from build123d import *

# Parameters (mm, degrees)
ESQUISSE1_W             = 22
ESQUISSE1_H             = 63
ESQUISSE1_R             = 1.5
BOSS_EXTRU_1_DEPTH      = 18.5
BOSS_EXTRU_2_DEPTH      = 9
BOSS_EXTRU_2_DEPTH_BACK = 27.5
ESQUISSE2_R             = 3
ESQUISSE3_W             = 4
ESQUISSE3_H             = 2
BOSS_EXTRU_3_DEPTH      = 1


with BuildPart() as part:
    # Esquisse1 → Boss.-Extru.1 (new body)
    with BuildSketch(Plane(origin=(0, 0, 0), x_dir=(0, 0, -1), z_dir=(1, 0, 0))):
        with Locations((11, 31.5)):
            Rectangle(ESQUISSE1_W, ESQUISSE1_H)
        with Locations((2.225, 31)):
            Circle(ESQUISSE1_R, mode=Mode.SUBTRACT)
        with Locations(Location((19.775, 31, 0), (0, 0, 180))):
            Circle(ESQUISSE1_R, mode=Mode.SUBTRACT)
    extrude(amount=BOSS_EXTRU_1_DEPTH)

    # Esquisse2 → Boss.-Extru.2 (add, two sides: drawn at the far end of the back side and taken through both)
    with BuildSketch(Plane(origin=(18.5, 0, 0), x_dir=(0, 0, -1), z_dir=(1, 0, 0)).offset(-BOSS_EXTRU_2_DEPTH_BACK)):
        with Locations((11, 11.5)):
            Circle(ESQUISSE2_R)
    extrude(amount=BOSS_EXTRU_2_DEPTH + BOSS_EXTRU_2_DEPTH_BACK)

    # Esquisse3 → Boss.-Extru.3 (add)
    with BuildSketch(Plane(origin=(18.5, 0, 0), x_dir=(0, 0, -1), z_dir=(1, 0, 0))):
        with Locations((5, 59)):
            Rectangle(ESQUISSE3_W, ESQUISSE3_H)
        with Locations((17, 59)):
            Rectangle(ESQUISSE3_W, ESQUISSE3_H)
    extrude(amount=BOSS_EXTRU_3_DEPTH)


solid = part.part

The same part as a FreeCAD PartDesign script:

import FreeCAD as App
import Part
import Sketcher
from FreeCAD import Vector
Q = App.Units.Quantity

doc = App.newDocument("Part")
body = doc.addObject("PartDesign::Body", "Body")

# Sketch on YZ plane
sketch1 = body.newObject("Sketcher::SketchObject", "Sketch")
sketch1.AttachmentSupport = (doc.getObject("YZ_Plane"), [""])
sketch1.MapMode = "FlatFace"
sketch1.addGeometry([
    Part.LineSegment(Vector(63, 0, 0), Vector(0, 0, 0)),  # 0
    Part.LineSegment(Vector(0, 0, 0), Vector(0, -22, 0)),  # 1
    Part.LineSegment(Vector(0, -22, 0), Vector(63, -22, 0)),  # 2
    Part.LineSegment(Vector(63, -22, 0), Vector(63, 0, 0)),  # 3
    Part.Circle(Vector(31, -2.225, 0), Vector(0, 0, 1), 1.5),  # 4
    Part.Circle(Vector(31, -19.775, 0), Vector(0, 0, 1), 1.5),  # 5
], False)
sketch1.addConstraint([
    Sketcher.Constraint("Coincident", 0, 2, 1, 1),
    Sketcher.Constraint("Coincident", 1, 2, 2, 1),
    Sketcher.Constraint("Coincident", 2, 2, 3, 1),
    Sketcher.Constraint("Coincident", 3, 2, 0, 1),
    Sketcher.Constraint("Horizontal", 0),
    Sketcher.Constraint("Vertical", 1),
    Sketcher.Constraint("Horizontal", 2),
    Sketcher.Constraint("Vertical", 3),
    Sketcher.Constraint("Coincident", 0, 2, -1, 1),
    Sketcher.Constraint("Equal", 4, 5),
    Sketcher.Constraint("Vertical", 4, 3, 5, 3),
    Sketcher.Constraint("Diameter", 4, Q("3 mm")),
    Sketcher.Constraint("DistanceX", 0, 2, 0, 1, Q("63 mm")),
    Sketcher.Constraint("DistanceY", 1, 2, 1, 1, Q("22 mm")),
    Sketcher.Constraint("DistanceX", -1, 1, 4, 3, Q("31 mm")),
    Sketcher.Constraint("DistanceY", 5, 3, 4, 3, Q("17.55 mm")),
    Sketcher.Constraint("DistanceY", 4, 3, -1, 1, Q("2.225 mm")),
])
pad1 = body.newObject("PartDesign::Pad", "Pad")
pad1.Profile = sketch1
pad1.Length = 18.5

# Sketch on YZ plane
sketch2 = body.newObject("Sketcher::SketchObject", "Sketch001")
sketch2.AttachmentSupport = (doc.getObject("YZ_Plane"), [""])
sketch2.MapMode = "FlatFace"
sketch2.AttachmentOffset = App.Placement(Vector(0, 0, 18.5), App.Rotation())
sketch2.addGeometry(Part.Circle(Vector(11.5, -11, 0), Vector(0, 0, 1), 3), False)
sketch2.addConstraint([
    Sketcher.Constraint("Diameter", 0, Q("6 mm")),
    Sketcher.Constraint("DistanceY", 0, 3, -1, 1, Q("11 mm")),
    Sketcher.Constraint("DistanceX", -1, 1, 0, 3, Q("11.5 mm")),
])
pad2 = body.newObject("PartDesign::Pad", "Pad001")
pad2.Profile = sketch2
pad2.Type = "TwoLengths"
pad2.Length = 9
pad2.Length2 = 27.5

# Sketch on YZ plane
sketch3 = body.newObject("Sketcher::SketchObject", "Sketch002")
sketch3.AttachmentSupport = (doc.getObject("YZ_Plane"), [""])
sketch3.MapMode = "FlatFace"
sketch3.AttachmentOffset = App.Placement(Vector(0, 0, 18.5), App.Rotation())
sketch3.addGeometry([
    Part.LineSegment(Vector(60, -3, 0), Vector(58, -3, 0)),  # 0
    Part.LineSegment(Vector(58, -3, 0), Vector(58, -7, 0)),  # 1
    Part.LineSegment(Vector(58, -7, 0), Vector(60, -7, 0)),  # 2
    Part.LineSegment(Vector(60, -7, 0), Vector(60, -3, 0)),  # 3
    Part.LineSegment(Vector(60, -15, 0), Vector(58, -15, 0)),  # 4
    Part.LineSegment(Vector(58, -15, 0), Vector(58, -19, 0)),  # 5
    Part.LineSegment(Vector(58, -19, 0), Vector(60, -19, 0)),  # 6
    Part.LineSegment(Vector(60, -19, 0), Vector(60, -15, 0)),  # 7
], False)
sketch3.addConstraint([
    Sketcher.Constraint("Coincident", 0, 2, 1, 1),
    Sketcher.Constraint("Coincident", 1, 2, 2, 1),
    Sketcher.Constraint("Coincident", 2, 2, 3, 1),
    Sketcher.Constraint("Coincident", 3, 2, 0, 1),
    Sketcher.Constraint("Coincident", 4, 2, 5, 1),
    Sketcher.Constraint("Coincident", 5, 2, 6, 1),
    Sketcher.Constraint("Coincident", 6, 2, 7, 1),
    Sketcher.Constraint("Coincident", 7, 2, 4, 1),
    Sketcher.Constraint("Horizontal", 0),
    Sketcher.Constraint("Vertical", 1),
    Sketcher.Constraint("Horizontal", 2),
    Sketcher.Constraint("Vertical", 3),
    Sketcher.Constraint("Horizontal", 4),
    Sketcher.Constraint("Vertical", 5),
    Sketcher.Constraint("Horizontal", 6),
    Sketcher.Constraint("Vertical", 7),
    Sketcher.Constraint("Vertical", 1, 2, 4, 2),
    Sketcher.Constraint("Vertical", 3, 2, 6, 2),
    Sketcher.Constraint("Equal", 3, 5),
    Sketcher.Constraint("DistanceX", 0, 2, 0, 1, Q("2 mm")),
    Sketcher.Constraint("DistanceY", 1, 2, 1, 1, Q("4 mm")),
    Sketcher.Constraint("DistanceX", -1, 1, 0, 2, Q("58 mm")),
    Sketcher.Constraint("DistanceY", 0, 2, -1, 1, Q("3 mm")),
    Sketcher.Constraint("DistanceY", 4, 2, -1, 1, Q("15 mm")),
])
pad3 = body.newObject("PartDesign::Pad", "Pad002")
pad3.Profile = sketch3
pad3.Length = 1

doc.recompute()
